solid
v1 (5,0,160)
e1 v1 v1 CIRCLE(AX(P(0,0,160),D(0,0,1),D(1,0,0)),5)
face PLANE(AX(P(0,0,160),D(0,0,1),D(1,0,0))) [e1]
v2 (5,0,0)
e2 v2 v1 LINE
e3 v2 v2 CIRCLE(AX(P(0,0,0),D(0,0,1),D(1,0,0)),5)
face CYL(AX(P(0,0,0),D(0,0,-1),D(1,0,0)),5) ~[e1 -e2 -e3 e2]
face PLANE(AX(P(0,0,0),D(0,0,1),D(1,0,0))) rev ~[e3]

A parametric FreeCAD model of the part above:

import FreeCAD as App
import Part
import Sketcher

V = App.Vector
Q = App.Units.Quantity

doc = App.newDocument("Part")
body = doc.addObject("PartDesign::Body", "Body")

sketch1 = body.newObject("Sketcher::SketchObject", "Sketch")
sketch1.AttachmentSupport = (doc.getObject("XY_Plane"), [""])
sketch1.MapMode = "FlatFace"
sketch1.addGeometry(Part.Circle(V(0, 0, 0), V(0, 0, 1), 5), False)
sketch1.addConstraint(Sketcher.Constraint("Coincident", 0, 3, -1, 1))
sketch1.addConstraint(Sketcher.Constraint("Diameter", 0, Q("10 mm")))
pad1 = body.newObject("PartDesign::Pad", "Pad")
pad1.Profile = sketch1
pad1.Length = 160

doc.recompute()
